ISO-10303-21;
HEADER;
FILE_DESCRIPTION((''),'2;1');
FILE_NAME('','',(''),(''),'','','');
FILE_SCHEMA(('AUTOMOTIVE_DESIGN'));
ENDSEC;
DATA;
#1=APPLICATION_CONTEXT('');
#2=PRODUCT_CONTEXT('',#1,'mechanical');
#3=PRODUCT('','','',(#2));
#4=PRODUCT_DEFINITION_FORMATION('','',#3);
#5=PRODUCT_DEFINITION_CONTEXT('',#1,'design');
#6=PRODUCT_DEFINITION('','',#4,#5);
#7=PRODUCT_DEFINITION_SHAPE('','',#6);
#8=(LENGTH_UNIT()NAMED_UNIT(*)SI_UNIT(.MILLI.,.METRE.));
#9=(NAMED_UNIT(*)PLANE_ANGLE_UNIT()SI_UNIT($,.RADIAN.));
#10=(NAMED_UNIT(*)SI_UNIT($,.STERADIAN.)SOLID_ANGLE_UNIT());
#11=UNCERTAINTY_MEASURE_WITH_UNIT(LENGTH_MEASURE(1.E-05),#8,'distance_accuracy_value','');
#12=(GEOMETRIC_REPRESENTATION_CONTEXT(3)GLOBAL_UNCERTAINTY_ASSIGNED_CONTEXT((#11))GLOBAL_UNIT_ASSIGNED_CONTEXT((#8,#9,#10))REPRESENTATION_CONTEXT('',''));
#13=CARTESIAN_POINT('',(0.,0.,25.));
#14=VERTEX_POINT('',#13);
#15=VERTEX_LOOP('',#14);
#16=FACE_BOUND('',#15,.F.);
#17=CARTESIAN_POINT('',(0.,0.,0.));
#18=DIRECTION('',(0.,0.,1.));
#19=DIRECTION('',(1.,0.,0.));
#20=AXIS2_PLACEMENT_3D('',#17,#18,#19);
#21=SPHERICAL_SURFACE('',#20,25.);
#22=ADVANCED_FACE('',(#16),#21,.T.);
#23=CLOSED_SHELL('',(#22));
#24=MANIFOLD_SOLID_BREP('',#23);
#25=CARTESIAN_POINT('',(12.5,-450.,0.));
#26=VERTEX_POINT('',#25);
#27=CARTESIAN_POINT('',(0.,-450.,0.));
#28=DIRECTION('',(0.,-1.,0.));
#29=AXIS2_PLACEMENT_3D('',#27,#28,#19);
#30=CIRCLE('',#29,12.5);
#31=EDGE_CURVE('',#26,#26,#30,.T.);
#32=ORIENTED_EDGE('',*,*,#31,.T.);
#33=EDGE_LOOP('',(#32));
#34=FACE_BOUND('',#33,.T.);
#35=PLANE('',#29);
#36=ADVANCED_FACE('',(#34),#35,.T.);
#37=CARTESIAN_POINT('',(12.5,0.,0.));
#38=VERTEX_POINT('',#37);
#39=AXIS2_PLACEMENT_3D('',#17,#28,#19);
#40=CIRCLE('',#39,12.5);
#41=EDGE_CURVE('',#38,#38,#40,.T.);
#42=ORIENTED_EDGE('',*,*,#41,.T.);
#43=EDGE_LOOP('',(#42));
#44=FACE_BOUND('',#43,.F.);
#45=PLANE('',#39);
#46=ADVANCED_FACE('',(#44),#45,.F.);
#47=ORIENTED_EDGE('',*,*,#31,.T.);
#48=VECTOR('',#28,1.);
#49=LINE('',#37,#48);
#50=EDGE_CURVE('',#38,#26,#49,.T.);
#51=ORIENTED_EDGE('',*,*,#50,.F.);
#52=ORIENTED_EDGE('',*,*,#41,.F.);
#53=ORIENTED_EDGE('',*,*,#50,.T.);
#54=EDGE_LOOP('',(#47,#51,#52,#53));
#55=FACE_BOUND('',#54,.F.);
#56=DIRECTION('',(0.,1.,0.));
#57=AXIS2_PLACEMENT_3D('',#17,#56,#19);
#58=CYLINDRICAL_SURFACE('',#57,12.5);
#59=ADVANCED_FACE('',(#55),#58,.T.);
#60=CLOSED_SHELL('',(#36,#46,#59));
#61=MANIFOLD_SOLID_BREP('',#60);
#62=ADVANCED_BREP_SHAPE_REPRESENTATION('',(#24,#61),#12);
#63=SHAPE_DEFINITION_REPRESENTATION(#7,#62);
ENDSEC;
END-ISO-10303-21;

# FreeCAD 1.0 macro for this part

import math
import FreeCAD as App
import Part
import Sketcher

V = App.Vector
Q = App.Units.Quantity

doc = App.newDocument("Part")
body = doc.addObject("PartDesign::Body", "Body")

sketch1 = body.newObject("Sketcher::SketchObject", "Sketch")
sketch1.AttachmentSupport = (doc.getObject("XZ_Plane"), [""])
sketch1.MapMode = "FlatFace"
sketch1.addGeometry(Part.LineSegment(V(0, 25, 0), V(0, -25, 0)), False)
sketch1.addGeometry(Part.ArcOfCircle(Part.Circle(V(0, 0, 0), V(0, 0, 1), 25), math.radians(-90), math.radians(90)), False)
sketch1.addConstraint(Sketcher.Constraint("Coincident", 0, 1, 1, 2))
sketch1.addConstraint(Sketcher.Constraint("Coincident", 1, 1, 0, 2))
sketch1.addConstraint(Sketcher.Constraint("Vertical", 0))
sketch1.addConstraint(Sketcher.Constraint("Coincident", 1, 3, -1, 1))
sketch1.addConstraint(Sketcher.Constraint("PointOnObject", 0, 1, -2))
sketch1.addConstraint(Sketcher.Constraint("Radius", 1, Q("25 mm")))
revolution = body.newObject("PartDesign::Revolution", "Revolution")
revolution.Profile = sketch1
revolution.ReferenceAxis = (sketch1, ["V_Axis"])
revolution.Angle = 360
body2 = doc.addObject("PartDesign::Body", "Body001")

sketch2 = body2.newObject("Sketcher::SketchObject", "Sketch001")
sketch2.AttachmentSupport = (doc.getObject("XZ_Plane001"), [""])
sketch2.MapMode = "FlatFace"
sketch2.addGeometry(Part.Circle(V(0, 0, 0), V(0, 0, 1), 12.5), False)
sketch2.addConstraint(Sketcher.Constraint("Coincident", 0, 3, -1, 1))
sketch2.addConstraint(Sketcher.Constraint("Diameter", 0, Q("25 mm")))
pad1 = body2.newObject("PartDesign::Pad", "Pad")
pad1.Profile = sketch2
pad1.Length = 450

doc.recompute()
